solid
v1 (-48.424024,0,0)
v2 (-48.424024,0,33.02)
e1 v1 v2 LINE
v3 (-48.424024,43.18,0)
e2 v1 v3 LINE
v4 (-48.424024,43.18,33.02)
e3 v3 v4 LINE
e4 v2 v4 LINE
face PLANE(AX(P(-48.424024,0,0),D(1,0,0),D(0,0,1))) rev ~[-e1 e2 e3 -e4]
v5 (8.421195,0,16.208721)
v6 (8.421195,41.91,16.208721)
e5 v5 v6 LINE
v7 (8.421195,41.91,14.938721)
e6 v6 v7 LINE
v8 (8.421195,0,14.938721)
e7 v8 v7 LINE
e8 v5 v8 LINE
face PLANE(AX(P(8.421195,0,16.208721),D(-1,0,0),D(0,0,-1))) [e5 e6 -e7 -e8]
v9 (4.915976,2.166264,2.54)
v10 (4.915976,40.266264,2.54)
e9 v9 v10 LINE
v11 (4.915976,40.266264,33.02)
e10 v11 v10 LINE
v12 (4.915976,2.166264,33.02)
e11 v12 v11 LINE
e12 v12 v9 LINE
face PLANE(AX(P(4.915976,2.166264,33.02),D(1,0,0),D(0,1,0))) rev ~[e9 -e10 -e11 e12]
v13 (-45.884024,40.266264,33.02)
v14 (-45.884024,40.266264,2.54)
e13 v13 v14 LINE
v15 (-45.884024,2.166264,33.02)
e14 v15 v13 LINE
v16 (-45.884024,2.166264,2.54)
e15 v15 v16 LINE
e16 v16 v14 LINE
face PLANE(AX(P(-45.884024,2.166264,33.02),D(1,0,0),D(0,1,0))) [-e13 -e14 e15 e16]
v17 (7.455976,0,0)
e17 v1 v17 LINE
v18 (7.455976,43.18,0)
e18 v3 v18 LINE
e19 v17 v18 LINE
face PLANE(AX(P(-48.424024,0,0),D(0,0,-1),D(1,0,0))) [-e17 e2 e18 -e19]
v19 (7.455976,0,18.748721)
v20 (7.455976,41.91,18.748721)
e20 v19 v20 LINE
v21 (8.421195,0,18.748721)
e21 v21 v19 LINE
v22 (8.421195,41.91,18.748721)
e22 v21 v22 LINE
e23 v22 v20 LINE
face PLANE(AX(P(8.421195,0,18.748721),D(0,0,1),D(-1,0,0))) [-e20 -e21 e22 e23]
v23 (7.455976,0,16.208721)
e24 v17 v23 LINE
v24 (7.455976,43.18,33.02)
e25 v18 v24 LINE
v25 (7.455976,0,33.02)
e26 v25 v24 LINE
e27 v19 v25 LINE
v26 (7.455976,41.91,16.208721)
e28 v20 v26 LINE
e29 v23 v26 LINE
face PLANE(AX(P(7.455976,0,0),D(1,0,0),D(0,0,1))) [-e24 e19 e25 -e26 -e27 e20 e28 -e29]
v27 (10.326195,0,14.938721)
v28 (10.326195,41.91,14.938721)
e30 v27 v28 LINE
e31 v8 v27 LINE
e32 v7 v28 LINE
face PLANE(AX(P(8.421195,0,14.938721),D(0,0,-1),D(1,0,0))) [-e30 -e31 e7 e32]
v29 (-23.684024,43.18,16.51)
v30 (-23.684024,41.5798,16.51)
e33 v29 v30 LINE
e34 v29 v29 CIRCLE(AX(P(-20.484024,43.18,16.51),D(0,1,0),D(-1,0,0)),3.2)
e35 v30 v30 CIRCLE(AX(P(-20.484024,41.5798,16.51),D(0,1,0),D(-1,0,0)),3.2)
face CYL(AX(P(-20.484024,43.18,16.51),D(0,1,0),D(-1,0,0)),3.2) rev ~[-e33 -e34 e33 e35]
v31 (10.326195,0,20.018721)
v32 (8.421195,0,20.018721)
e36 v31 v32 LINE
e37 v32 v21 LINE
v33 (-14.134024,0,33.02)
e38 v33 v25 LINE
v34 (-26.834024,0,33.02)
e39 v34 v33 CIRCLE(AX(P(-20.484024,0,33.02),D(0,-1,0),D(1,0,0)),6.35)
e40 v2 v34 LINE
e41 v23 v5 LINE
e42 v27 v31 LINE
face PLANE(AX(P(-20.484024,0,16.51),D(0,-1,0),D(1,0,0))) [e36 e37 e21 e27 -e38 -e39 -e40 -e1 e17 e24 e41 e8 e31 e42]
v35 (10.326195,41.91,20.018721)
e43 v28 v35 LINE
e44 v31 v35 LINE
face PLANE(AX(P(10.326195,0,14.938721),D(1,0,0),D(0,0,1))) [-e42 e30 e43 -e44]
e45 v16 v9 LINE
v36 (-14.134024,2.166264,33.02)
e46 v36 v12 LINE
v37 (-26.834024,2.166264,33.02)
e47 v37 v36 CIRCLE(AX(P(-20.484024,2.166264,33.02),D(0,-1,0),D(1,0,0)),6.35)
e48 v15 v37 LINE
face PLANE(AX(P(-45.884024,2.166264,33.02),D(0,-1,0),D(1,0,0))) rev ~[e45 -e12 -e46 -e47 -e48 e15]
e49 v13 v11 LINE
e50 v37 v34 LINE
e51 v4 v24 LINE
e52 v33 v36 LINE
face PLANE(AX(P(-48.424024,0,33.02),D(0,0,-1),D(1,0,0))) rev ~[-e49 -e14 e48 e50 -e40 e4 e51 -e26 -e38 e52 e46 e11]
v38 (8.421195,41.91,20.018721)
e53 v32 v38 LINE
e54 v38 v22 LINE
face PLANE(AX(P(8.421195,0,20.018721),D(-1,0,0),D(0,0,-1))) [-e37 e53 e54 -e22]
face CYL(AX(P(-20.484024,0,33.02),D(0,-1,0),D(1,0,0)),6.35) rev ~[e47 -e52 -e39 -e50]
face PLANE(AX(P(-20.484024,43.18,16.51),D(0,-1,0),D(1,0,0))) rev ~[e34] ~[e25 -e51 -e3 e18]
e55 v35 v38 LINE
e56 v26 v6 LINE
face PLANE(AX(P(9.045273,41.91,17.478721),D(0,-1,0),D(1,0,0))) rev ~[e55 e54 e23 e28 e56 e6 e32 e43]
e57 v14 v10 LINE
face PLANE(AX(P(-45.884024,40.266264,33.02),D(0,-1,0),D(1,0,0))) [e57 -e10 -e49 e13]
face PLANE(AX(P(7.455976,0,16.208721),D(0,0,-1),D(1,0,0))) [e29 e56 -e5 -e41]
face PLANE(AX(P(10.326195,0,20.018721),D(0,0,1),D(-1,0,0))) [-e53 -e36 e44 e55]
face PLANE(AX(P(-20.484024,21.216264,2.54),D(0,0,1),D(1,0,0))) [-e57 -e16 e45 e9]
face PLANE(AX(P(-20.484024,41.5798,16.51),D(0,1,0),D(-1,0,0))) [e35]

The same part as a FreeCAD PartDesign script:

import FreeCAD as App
import Part
import Sketcher
from FreeCAD import Vector
Q = App.Units.Quantity

doc = App.newDocument("Part")
body = doc.addObject("PartDesign::Body", "Body")

sketch1 = doc.addObject("Sketcher::SketchObject", "Sketch")
body.addObject(sketch1)
sketch1.AttachmentSupport = (doc.XZ_Plane, [""])
sketch1.MapMode = "FlatFace"
sketch1.addGeometry([
    Part.LineSegment(Vector(-48, 33, 0), Vector(-48, 0, 0)),
    Part.LineSegment(Vector(-48, 0, 0), Vector(7, 0, 0)),
    Part.LineSegment(Vector(7, 0, 0), Vector(7, 33, 0)),
    Part.LineSegment(Vector(7, 33, 0), Vector(-48, 33, 0)),
], False)
sketch1.addConstraint([
    Sketcher.Constraint("Coincident", 0, 2, 1, 1),
    Sketcher.Constraint("Coincident", 1, 2, 2, 1),
    Sketcher.Constraint("Coincident", 2, 2, 3, 1),
    Sketcher.Constraint("Coincident", 3, 2, 0, 1),
    Sketcher.Constraint("Vertical", 0),
    Sketcher.Constraint("Horizontal", 1),
    Sketcher.Constraint("Vertical", 2),
    Sketcher.Constraint("Horizontal", 3),
    Sketcher.Constraint("PointOnObject", 0, 2, -1),
    Sketcher.Constraint("DistanceX", 1, 1, 1, 2, Q("2.2 in")),
    Sketcher.Constraint("DistanceY", 0, 2, 0, 1, Q("1.3 in")),
    Sketcher.Constraint("DistanceX", 0, 2, -1, 1, 48.424024),
])
pad1 = doc.addObject("PartDesign::Pad", "Pad")
body.addObject(pad1)
pad1.Profile = sketch1
pad1.Length = Q("1.7 in")
pad1.Reversed = True

sketch2 = doc.addObject("Sketcher::SketchObject", "Sketch001")
body.addObject(sketch2)
sketch2.AttachmentSupport = (doc.XY_Plane, [""])
sketch2.MapMode = "FlatFace"
sketch2.AttachmentOffset = App.Placement(Vector(0, 0, 1.3 * 25.4), App.Rotation())
sketch2.addGeometry([
    Part.LineSegment(Vector(-46, 40, 0), Vector(-46, 2, 0)),
    Part.LineSegment(Vector(-46, 2, 0), Vector(5, 2, 0)),
    Part.LineSegment(Vector(5, 2, 0), Vector(5, 40, 0)),
    Part.LineSegment(Vector(5, 40, 0), Vector(-46, 40, 0)),
], False)
sketch2.addConstraint([
    Sketcher.Constraint("Coincident", 0, 2, 1, 1),
    Sketcher.Constraint("Coincident", 1, 2, 2, 1),
    Sketcher.Constraint("Coincident", 2, 2, 3, 1),
    Sketcher.Constraint("Coincident", 3, 2, 0, 1),
    Sketcher.Constraint("Vertical", 0),
    Sketcher.Constraint("Horizontal", 1),
    Sketcher.Constraint("Vertical", 2),
    Sketcher.Constraint("Horizontal", 3),
    Sketcher.Constraint("DistanceX", 1, 1, 1, 2, Q("2 in")),
    Sketcher.Constraint("DistanceY", 0, 2, 0, 1, Q("1.5 in")),
    Sketcher.Constraint("DistanceX", 0, 2, -1, 1, 45.884024),
    Sketcher.Constraint("DistanceY", -1, 1, 0, 2, 2.166264),
])
pocket1 = doc.addObject("PartDesign::Pocket", "Pocket")
body.addObject(pocket1)
pocket1.Profile = sketch2
pocket1.Length = Q("1.2 in")

sketch3 = doc.addObject("Sketcher::SketchObject", "Sketch002")
body.addObject(sketch3)
sketch3.AttachmentSupport = (doc.XZ_Plane, [""])
sketch3.MapMode = "FlatFace"
sketch3.addGeometry(Part.Circle(Vector(-20, 33, 0), Vector(0, 0, 1), 6), False)
sketch3.addConstraint([
    Sketcher.Constraint("Diameter", 0, Q("0.5 in")),
    Sketcher.Constraint("DistanceY", -1, 1, 0, 3, Q("1.3 in")),
    Sketcher.Constraint("DistanceX", 0, 3, -1, 1, 20.484024),
])
pocket2 = doc.addObject("PartDesign::Pocket", "Pocket001")
body.addObject(pocket2)
pocket2.Profile = sketch3
pocket2.Length = Q("1 in")

sketch4 = doc.addObject("Sketcher::SketchObject", "Sketch003")
body.addObject(sketch4)
sketch4.AttachmentSupport = (doc.XZ_Plane, [""])
sketch4.MapMode = "FlatFace"
sketch4.AttachmentOffset = App.Placement(Vector(0, 0, -1.7 * 25.4), App.Rotation())
sketch4.addGeometry(Part.Circle(Vector(-20.5, 16.5, 0), Vector(0, 0, 1), 3.2), False)
sketch4.addConstraint([
    Sketcher.Constraint("Diameter", 0, 6.4),
    Sketcher.Constraint("DistanceY", -1, 1, 0, 3, Q("0.65 in")),
    Sketcher.Constraint("DistanceX", 0, 3, -1, 1, 20.484024),
])
pocket3 = doc.addObject("PartDesign::Pocket", "Pocket002")
body.addObject(pocket3)
pocket3.Profile = sketch4
pocket3.Length = Q("0.063 in")
pocket3.Reversed = True

sketch5 = doc.addObject("Sketcher::SketchObject", "Sketch004")
body.addObject(sketch5)
sketch5.AttachmentSupport = (doc.XZ_Plane, [""])
sketch5.MapMode = "FlatFace"
sketch5.addGeometry([
    Part.LineSegment(Vector(8.4, 20, 0), Vector(8.4, 18.7, 0)),
    Part.LineSegment(Vector(8.4, 18.7, 0), Vector(7.5, 18.7, 0)),
    Part.LineSegment(Vector(7.5, 18.7, 0), Vector(7.5, 16.2, 0)),
    Part.LineSegment(Vector(7.5, 16.2, 0), Vector(8.4, 16.2, 0)),
    Part.LineSegment(Vector(8.4, 16.2, 0), Vector(8.4, 14.9, 0)),
    Part.LineSegment(Vector(8.4, 14.9, 0), Vector(10.3, 14.9, 0)),
    Part.LineSegment(Vector(10.3, 14.9, 0), Vector(10.3, 20, 0)),
    Part.LineSegment(Vector(10.3, 20, 0), Vector(8.4, 20, 0)),
], False)
sketch5.addConstraint([
    Sketcher.Constraint("Coincident", 0, 2, 1, 1),
    Sketcher.Constraint("Coincident", 1, 2, 2, 1),
    Sketcher.Constraint("Coincident", 2, 2, 3, 1),
    Sketcher.Constraint("Coincident", 3, 2, 4, 1),
    Sketcher.Constraint("Coincident", 4, 2, 5, 1),
    Sketcher.Constraint("Coincident", 5, 2, 6, 1),
    Sketcher.Constraint("Coincident", 6, 2, 7, 1),
    Sketcher.Constraint("Coincident", 7, 2, 0, 1),
    Sketcher.Constraint("Vertical", 0),
    Sketcher.Constraint("Horizontal", 1),
    Sketcher.Constraint("Vertical", 2),
    Sketcher.Constraint("Horizontal", 3),
    Sketcher.Constraint("Vertical", 4),
    Sketcher.Constraint("Horizontal", 5),
    Sketcher.Constraint("Vertical", 6),
    Sketcher.Constraint("Horizontal", 7),
    Sketcher.Constraint("Vertical", 0, 2, 3, 2),
    Sketcher.Constraint("Equal", 0, 4),
    Sketcher.Constraint("DistanceY", 2, 2, 2, 1, Q("0.1 in")),
    Sketcher.Constraint("DistanceY", 6, 1, 6, 2, Q("0.2 in")),
    Sketcher.Constraint("DistanceX", 5, 1, 5, 2, Q("0.075 in")),
    Sketcher.Constraint("DistanceX", 1, 2, 1, 1, 0.965219),
    Sketcher.Constraint("DistanceY", -1, 1, 0, 2, 18.748721),
    Sketcher.Constraint("DistanceX", -1, 1, 0, 2, 8.421195),
])
pad2 = doc.addObject("PartDesign::Pad", "Pad001")
body.addObject(pad2)
pad2.Profile = sketch5
pad2.Length = Q("1.65 in")
pad2.Reversed = True

doc.recompute()
